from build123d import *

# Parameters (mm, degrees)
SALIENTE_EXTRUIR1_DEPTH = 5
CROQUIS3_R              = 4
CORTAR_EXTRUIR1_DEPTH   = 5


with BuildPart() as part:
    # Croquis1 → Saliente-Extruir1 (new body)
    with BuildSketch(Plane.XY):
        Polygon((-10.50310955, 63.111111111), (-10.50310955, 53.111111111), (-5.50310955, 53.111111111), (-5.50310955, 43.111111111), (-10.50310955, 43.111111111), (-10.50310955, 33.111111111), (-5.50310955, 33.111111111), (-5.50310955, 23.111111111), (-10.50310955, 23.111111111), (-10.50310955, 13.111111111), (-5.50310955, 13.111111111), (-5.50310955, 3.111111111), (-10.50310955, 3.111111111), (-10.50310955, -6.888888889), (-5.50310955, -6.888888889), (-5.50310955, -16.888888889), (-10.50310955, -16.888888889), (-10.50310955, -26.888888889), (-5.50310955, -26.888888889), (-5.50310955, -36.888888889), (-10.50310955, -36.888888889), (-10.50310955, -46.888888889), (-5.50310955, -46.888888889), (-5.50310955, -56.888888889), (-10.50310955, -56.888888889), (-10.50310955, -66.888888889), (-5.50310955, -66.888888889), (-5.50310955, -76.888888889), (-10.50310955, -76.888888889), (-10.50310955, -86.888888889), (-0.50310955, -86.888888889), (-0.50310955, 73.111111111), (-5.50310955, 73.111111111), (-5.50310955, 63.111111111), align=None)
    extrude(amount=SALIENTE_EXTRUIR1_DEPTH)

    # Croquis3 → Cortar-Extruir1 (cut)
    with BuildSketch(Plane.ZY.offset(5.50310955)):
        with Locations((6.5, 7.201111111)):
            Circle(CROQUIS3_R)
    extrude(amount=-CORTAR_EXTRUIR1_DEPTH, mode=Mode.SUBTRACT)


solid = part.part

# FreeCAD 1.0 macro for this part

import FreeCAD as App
import Part
import Sketcher

V = App.Vector


def add_polygon(sketch, points):
    """Adds a closed chain of lines whose ends are joined by coincident constraints."""
    first, n = sketch.GeometryCount, len(points)
    for a, b in zip(points, points[1:] + points[:1]):
        sketch.addGeometry(Part.LineSegment(App.Vector(*a, 0), App.Vector(*b, 0)), False)
    for i in range(n):
        sketch.addConstraint(Sketcher.Constraint("Coincident", first + i, 2, first + (i + 1) % n, 1))

doc = App.newDocument("Part")
body = doc.addObject("PartDesign::Body", "Body")

# Sketch on XY plane
sketch1 = body.newObject("Sketcher::SketchObject", "Sketch")
sketch1.AttachmentSupport = (doc.getObject("XY_Plane"), [""])
sketch1.MapMode = "FlatFace"
add_polygon(sketch1, [(-11, 63), (-11, 53), (-6, 53), (-6, 43), (-11, 43), (-11, 33), (-6, 33), (-6, 23), (-11, 23), (-11, 13), (-6, 13), (-6, 3), (-11, 3), (-11, -7), (-6, -7), (-6, -17), (-11, -17), (-11, -27), (-6, -27), (-6, -37), (-11, -37), (-11, -47), (-6, -47), (-6, -57), (-11, -57), (-11, -67), (-6, -67), (-6, -77), (-11, -77), (-11, -87), (-1, -87), (-1, 73), (-6, 73), (-6, 63)])  # lines 0-33
sketch1.addConstraint(Sketcher.Constraint("Vertical", 0))
sketch1.addConstraint(Sketcher.Constraint("Horizontal", 1))
sketch1.addConstraint(Sketcher.Constraint("Vertical", 2))
sketch1.addConstraint(Sketcher.Constraint("Horizontal", 3))
sketch1.addConstraint(Sketcher.Constraint("Vertical", 4))
sketch1.addConstraint(Sketcher.Constraint("Horizontal", 5))
sketch1.addConstraint(Sketcher.Constraint("Vertical", 6))
sketch1.addConstraint(Sketcher.Constraint("Horizontal", 7))
sketch1.addConstraint(Sketcher.Constraint("Vertical", 8))
sketch1.addConstraint(Sketcher.Constraint("Horizontal", 9))
sketch1.addConstraint(Sketcher.Constraint("Vertical", 10))
sketch1.addConstraint(Sketcher.Constraint("Horizontal", 11))
sketch1.addConstraint(Sketcher.Constraint("Vertical", 12))
sketch1.addConstraint(Sketcher.Constraint("Horizontal", 13))
sketch1.addConstraint(Sketcher.Constraint("Vertical", 14))
sketch1.addConstraint(Sketcher.Constraint("Horizontal", 15))
sketch1.addConstraint(Sketcher.Constraint("Vertical", 16))
sketch1.addConstraint(Sketcher.Constraint("Horizontal", 17))
sketch1.addConstraint(Sketcher.Constraint("Vertical", 18))
sketch1.addConstraint(Sketcher.Constraint("Horizontal", 19))
sketch1.addConstraint(Sketcher.Constraint("Vertical", 20))
sketch1.addConstraint(Sketcher.Constraint("Horizontal", 21))
sketch1.addConstraint(Sketcher.Constraint("Vertical", 22))
sketch1.addConstraint(Sketcher.Constraint("Horizontal", 23))
sketch1.addConstraint(Sketcher.Constraint("Vertical", 24))
sketch1.addConstraint(Sketcher.Constraint("Horizontal", 25))
sketch1.addConstraint(Sketcher.Constraint("Vertical", 26))
sketch1.addConstraint(Sketcher.Constraint("Horizontal", 27))
sketch1.addConstraint(Sketcher.Constraint("Vertical", 28))
sketch1.addConstraint(Sketcher.Constraint("Horizontal", 29))
sketch1.addConstraint(Sketcher.Constraint("Vertical", 30))
sketch1.addConstraint(Sketcher.Constraint("Horizontal", 31))
sketch1.addConstraint(Sketcher.Constraint("Vertical", 32))
sketch1.addConstraint(Sketcher.Constraint("Horizontal", 33))
sketch1.addConstraint(Sketcher.Constraint("Vertical", 0, 2, 3, 2))
sketch1.addConstraint(Sketcher.Constraint("Vertical", 2, 2, 5, 2))
sketch1.addConstraint(Sketcher.Constraint("Vertical", 4, 2, 7, 2))
sketch1.addConstraint(Sketcher.Constraint("Vertical", 6, 2, 9, 2))
sketch1.addConstraint(Sketcher.Constraint("Vertical", 8, 2, 11, 2))
sketch1.addConstraint(Sketcher.Constraint("Vertical", 10, 2, 13, 2))
sketch1.addConstraint(Sketcher.Constraint("Vertical", 12, 2, 15, 2))
sketch1.addConstraint(Sketcher.Constraint("Vertical", 14, 2, 17, 2))
sketch1.addConstraint(Sketcher.Constraint("Vertical", 16, 2, 19, 2))
sketch1.addConstraint(Sketcher.Constraint("Vertical", 18, 2, 21, 2))
sketch1.addConstraint(Sketcher.Constraint("Vertical", 20, 2, 23, 2))
sketch1.addConstraint(Sketcher.Constraint("Vertical", 22, 2, 25, 2))
sketch1.addConstraint(Sketcher.Constraint("Vertical", 24, 2, 27, 2))
sketch1.addConstraint(Sketcher.Constraint("Vertical", 26, 2, 31, 2))
sketch1.addConstraint(Sketcher.Constraint("Equal", 27, 31))
sketch1.addConstraint(Sketcher.Constraint("Equal", 29, 0))
sketch1.addConstraint(Sketcher.Constraint("Equal", 0, 2))
sketch1.addConstraint(Sketcher.Constraint("Equal", 2, 4))
sketch1.addConstraint(Sketcher.Constraint("Equal", 4, 6))
sketch1.addConstraint(Sketcher.Constraint("Equal", 6, 8))
sketch1.addConstraint(Sketcher.Constraint("Equal", 8, 10))
sketch1.addConstraint(Sketcher.Constraint("Equal", 10, 12))
sketch1.addConstraint(Sketcher.Constraint("Equal", 12, 14))
sketch1.addConstraint(Sketcher.Constraint("Equal", 14, 16))
sketch1.addConstraint(Sketcher.Constraint("Equal", 16, 18))
sketch1.addConstraint(Sketcher.Constraint("Equal", 18, 20))
sketch1.addConstraint(Sketcher.Constraint("Equal", 20, 22))
sketch1.addConstraint(Sketcher.Constraint("Equal", 22, 24))
sketch1.addConstraint(Sketcher.Constraint("Equal", 24, 26))
sketch1.addConstraint(Sketcher.Constraint("Equal", 26, 28))
sketch1.addConstraint(Sketcher.Constraint("Equal", 28, 32))
sketch1.addConstraint(Sketcher.Constraint("DistanceX", 1, 1, 1, 2, 5.0))
sketch1.addConstraint(Sketcher.Constraint("DistanceX", 0, 2, -1, 1, 10.50311))
sketch1.addConstraint(Sketcher.Constraint("DistanceY", -1, 1, 0, 2, 53.111111))
pad1 = body.newObject("PartDesign::Pad", "Pad")
pad1.Profile = sketch1
pad1.Length = 5

# Sketch on YZ plane
sketch2 = body.newObject("Sketcher::SketchObject", "Sketch001")
sketch2.AttachmentSupport = (doc.getObject("YZ_Plane"), [""])
sketch2.MapMode = "FlatFace"
sketch2.AttachmentOffset = App.Placement(V(0, 0, -5.50311), App.Rotation())
sketch2.addGeometry(Part.Circle(V(7.2, 6.5, 0), V(0, 0, 1), 4), False)
sketch2.addConstraint(Sketcher.Constraint("Diameter", 0, 8.0))
sketch2.addConstraint(Sketcher.Constraint("DistanceY", -1, 1, 0, 3, 6.5))
sketch2.addConstraint(Sketcher.Constraint("DistanceX", -1, 1, 0, 3, 7.201111))
pocket1 = body.newObject("PartDesign::Pocket", "Pocket")
pocket1.Profile = sketch2
pocket1.Length = 5
pocket1.Reversed = True

doc.recompute()
